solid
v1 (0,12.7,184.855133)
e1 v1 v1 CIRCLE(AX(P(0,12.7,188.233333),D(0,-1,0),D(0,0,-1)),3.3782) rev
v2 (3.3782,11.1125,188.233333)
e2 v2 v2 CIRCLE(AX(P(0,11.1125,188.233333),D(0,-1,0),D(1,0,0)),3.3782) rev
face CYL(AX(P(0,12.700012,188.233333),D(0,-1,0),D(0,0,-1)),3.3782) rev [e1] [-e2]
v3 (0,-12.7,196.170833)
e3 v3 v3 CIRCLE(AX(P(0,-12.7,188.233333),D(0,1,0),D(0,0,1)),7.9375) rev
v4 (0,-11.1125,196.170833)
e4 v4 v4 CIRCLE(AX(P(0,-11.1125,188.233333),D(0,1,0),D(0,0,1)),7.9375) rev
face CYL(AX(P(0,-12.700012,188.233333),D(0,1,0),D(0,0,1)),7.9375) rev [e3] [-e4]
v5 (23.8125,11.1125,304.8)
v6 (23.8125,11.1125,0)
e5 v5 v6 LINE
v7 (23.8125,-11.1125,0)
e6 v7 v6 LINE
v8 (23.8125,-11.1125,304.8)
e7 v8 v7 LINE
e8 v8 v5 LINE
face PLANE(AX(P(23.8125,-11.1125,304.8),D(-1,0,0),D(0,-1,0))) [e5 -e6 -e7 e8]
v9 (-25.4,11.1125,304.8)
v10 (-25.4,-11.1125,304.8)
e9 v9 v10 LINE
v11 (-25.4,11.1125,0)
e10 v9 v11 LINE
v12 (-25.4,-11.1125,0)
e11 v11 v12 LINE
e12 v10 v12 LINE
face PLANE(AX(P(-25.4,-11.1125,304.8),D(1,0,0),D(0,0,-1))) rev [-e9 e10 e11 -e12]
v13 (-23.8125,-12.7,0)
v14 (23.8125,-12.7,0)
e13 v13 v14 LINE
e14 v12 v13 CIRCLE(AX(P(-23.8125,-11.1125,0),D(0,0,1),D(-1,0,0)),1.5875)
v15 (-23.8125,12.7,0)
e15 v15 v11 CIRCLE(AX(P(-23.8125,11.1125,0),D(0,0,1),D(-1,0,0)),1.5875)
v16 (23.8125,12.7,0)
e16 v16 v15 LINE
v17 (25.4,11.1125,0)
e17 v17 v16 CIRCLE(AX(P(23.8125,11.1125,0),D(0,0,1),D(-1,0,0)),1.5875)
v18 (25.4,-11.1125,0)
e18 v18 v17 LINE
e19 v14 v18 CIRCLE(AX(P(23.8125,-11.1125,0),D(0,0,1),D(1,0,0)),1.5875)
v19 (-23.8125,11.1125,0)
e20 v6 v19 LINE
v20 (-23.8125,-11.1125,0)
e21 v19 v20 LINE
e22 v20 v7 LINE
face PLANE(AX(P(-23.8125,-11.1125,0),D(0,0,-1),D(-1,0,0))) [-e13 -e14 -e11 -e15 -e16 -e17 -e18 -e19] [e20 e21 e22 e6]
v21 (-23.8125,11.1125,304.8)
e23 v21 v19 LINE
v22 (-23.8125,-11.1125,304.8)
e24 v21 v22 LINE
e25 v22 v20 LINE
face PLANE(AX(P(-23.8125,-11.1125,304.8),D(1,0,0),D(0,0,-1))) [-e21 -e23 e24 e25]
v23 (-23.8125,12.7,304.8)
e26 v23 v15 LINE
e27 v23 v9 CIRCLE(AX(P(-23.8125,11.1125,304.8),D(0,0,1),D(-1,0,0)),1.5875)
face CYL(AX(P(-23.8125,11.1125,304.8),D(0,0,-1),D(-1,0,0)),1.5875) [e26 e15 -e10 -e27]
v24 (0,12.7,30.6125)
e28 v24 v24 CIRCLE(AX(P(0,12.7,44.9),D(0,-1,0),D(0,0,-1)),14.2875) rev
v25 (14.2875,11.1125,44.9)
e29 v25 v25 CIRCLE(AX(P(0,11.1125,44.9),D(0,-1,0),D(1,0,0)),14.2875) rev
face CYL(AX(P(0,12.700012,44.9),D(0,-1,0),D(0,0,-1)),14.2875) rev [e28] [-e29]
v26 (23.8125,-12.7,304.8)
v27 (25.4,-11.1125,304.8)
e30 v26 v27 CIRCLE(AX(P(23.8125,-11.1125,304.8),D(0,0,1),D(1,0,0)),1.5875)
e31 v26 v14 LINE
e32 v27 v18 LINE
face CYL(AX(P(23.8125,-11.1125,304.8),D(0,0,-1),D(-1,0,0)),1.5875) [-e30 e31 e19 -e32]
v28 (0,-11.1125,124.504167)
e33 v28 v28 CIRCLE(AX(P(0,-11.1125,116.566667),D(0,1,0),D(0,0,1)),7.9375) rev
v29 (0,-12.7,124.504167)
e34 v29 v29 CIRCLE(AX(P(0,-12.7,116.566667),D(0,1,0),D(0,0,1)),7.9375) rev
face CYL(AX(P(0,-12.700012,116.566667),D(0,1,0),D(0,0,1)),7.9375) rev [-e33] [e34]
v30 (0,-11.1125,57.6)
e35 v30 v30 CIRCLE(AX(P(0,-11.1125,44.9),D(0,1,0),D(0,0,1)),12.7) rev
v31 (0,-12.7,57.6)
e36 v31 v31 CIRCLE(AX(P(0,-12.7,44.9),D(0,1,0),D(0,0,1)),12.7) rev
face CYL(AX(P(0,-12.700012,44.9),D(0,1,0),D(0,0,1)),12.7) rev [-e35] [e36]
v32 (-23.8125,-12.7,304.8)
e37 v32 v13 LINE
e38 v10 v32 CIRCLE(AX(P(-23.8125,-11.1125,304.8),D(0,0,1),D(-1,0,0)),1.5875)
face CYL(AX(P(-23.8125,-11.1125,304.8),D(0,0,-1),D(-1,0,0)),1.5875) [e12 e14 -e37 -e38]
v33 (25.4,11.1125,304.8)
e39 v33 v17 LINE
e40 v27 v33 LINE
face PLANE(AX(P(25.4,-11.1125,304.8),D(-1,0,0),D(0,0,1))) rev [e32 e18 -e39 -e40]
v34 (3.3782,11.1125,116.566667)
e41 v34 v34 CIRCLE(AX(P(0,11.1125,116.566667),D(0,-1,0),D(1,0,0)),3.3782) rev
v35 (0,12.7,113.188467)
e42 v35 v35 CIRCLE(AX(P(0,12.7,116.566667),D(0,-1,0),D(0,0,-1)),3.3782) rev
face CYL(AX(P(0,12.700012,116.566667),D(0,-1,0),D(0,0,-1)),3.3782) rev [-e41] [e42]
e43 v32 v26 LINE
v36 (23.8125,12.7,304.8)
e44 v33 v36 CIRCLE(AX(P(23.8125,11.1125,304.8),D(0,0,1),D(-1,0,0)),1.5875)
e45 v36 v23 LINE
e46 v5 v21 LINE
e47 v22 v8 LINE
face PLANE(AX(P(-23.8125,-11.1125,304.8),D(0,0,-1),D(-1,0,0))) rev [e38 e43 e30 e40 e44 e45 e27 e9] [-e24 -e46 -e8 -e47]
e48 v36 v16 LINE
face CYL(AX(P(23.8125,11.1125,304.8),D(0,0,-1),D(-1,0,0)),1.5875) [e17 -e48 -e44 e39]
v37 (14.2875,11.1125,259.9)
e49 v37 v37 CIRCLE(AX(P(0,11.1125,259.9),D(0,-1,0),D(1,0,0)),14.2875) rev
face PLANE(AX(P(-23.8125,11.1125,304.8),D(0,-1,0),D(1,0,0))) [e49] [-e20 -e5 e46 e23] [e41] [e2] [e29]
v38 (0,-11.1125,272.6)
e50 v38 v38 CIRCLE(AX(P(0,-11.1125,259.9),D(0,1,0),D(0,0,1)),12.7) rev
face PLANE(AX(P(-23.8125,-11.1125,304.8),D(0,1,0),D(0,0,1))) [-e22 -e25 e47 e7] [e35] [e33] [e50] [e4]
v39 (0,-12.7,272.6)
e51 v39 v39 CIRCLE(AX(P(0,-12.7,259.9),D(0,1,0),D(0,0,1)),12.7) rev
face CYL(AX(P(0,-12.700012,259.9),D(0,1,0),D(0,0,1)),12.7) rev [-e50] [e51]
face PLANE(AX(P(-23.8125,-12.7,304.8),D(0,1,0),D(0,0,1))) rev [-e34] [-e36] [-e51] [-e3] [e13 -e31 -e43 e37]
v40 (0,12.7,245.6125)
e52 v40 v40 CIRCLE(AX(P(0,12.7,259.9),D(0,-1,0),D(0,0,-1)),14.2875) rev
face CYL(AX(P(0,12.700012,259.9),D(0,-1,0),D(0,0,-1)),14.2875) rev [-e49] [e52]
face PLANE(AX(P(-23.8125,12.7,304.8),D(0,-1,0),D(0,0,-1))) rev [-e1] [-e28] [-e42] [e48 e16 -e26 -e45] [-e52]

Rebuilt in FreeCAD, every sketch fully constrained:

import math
import FreeCAD as App
import Part
import Sketcher
Q = App.Units.Quantity

doc = App.newDocument("Part")
body = doc.addObject("PartDesign::Body", "Body")

# Sketch on XY plane
sketch1 = body.newObject("Sketcher::SketchObject", "Sketch")
sketch1.AttachmentSupport = (doc.getObject("XY_Plane"), [""])
sketch1.MapMode = "FlatFace"
sketch1.addGeometry([
    Part.LineSegment(App.Vector(-23.8, -12.7, 0), App.Vector(23.8, -12.7, 0)),  # 0
    Part.ArcOfCircle(Part.Circle(App.Vector(23.8, -11.1, 0), App.Vector(0, 0, 1), 1.6), math.radians(-90), math.radians(0)),  # 1
    Part.LineSegment(App.Vector(25.4, -11.1, 0), App.Vector(25.4, 11.1, 0)),  # 2
    Part.ArcOfCircle(Part.Circle(App.Vector(23.8, 11.1, 0), App.Vector(0, 0, 1), 1.6), math.radians(0), math.radians(90)),  # 3
    Part.LineSegment(App.Vector(23.8, 12.7, 0), App.Vector(-23.8, 12.7, 0)),  # 4
    Part.ArcOfCircle(Part.Circle(App.Vector(-23.8, 11.1, 0), App.Vector(0, 0, 1), 1.6), math.radians(90), math.radians(180)),  # 5
    Part.LineSegment(App.Vector(-25.4, 11.1, 0), App.Vector(-25.4, -11.1, 0)),  # 6
    Part.ArcOfCircle(Part.Circle(App.Vector(-23.8, -11.1, 0), App.Vector(0, 0, 1), 1.6), math.radians(180), math.radians(270)),  # 7
    Part.LineSegment(App.Vector(23.8, -11.1, 0), App.Vector(-23.8, -11.1, 0)),  # 8
    Part.LineSegment(App.Vector(-23.8, -11.1, 0), App.Vector(-23.8, 11.1, 0)),  # 9
    Part.LineSegment(App.Vector(-23.8, 11.1, 0), App.Vector(23.8, 11.1, 0)),  # 10
    Part.LineSegment(App.Vector(23.8, 11.1, 0), App.Vector(23.8, -11.1, 0)),  # 11
], False)
sketch1.addConstraint([
    Sketcher.Constraint("Tangent", 0, 2, 1, 1),
    Sketcher.Constraint("Tangent", 1, 2, 2, 1),
    Sketcher.Constraint("Tangent", 2, 2, 3, 1),
    Sketcher.Constraint("Tangent", 3, 2, 4, 1),
    Sketcher.Constraint("Tangent", 4, 2, 5, 1),
    Sketcher.Constraint("Tangent", 5, 2, 6, 1),
    Sketcher.Constraint("Tangent", 6, 2, 7, 1),
    Sketcher.Constraint("Tangent", 7, 2, 0, 1),
    Sketcher.Constraint("Coincident", 8, 2, 9, 1),
    Sketcher.Constraint("Coincident", 9, 2, 10, 1),
    Sketcher.Constraint("Coincident", 10, 2, 11, 1),
    Sketcher.Constraint("Coincident", 11, 2, 8, 1),
    Sketcher.Constraint("Horizontal", 0),
    Sketcher.Constraint("Vertical", 2),
    Sketcher.Constraint("Horizontal", 4),
    Sketcher.Constraint("Vertical", 6),
    Sketcher.Constraint("Horizontal", 8),
    Sketcher.Constraint("Vertical", 9),
    Sketcher.Constraint("Horizontal", 10),
    Sketcher.Constraint("Vertical", 11),
    Sketcher.Constraint("Coincident", 8, 2, 7, 3),
    Sketcher.Constraint("Coincident", 9, 2, 5, 3),
    Sketcher.Constraint("Coincident", 10, 2, 3, 3),
    Sketcher.Constraint("Equal", 1, 3),
    Sketcher.Constraint("Symmetric", 1, 3, 5, 3, -1, 1),
    Sketcher.Constraint("DistanceX", -1, 1, 1, 2, Q("1 in")),
    Sketcher.Constraint("Radius", 1, Q("0.0625 in")),
    Sketcher.Constraint("DistanceY", 0, 2, 3, 2, Q("1 in")),
])
pad1 = body.newObject("PartDesign::Pad", "Pad")
pad1.Profile = sketch1
pad1.Length = Q("12 in")

# Sketch on XZ plane
sketch2 = body.newObject("Sketcher::SketchObject", "Sketch001")
sketch2.AttachmentSupport = (doc.getObject("XZ_Plane"), [""])
sketch2.MapMode = "FlatFace"
sketch2.AttachmentOffset = App.Placement(App.Vector(0, 0, -0.5 * 25.4), App.Rotation())
sketch2.addGeometry(Part.Circle(App.Vector(0, 260, 0), App.Vector(0, 0, 1), 14), False)
sketch2.addConstraint([
    Sketcher.Constraint("PointOnObject", 0, 3, -2),
    Sketcher.Constraint("Diameter", 0, Q("1.125 in")),
    Sketcher.Constraint("DistanceY", -1, 1, 0, 3, 259.9),
])
pocket1 = body.newObject("PartDesign::Pocket", "Pocket")
pocket1.Profile = sketch2
pocket1.Type = "UpToFirst"
pocket1.Reversed = True

# Sketch on XZ plane
sketch3 = body.newObject("Sketcher::SketchObject", "Sketch002")
sketch3.AttachmentSupport = (doc.getObject("XZ_Plane"), [""])
sketch3.MapMode = "FlatFace"
sketch3.AttachmentOffset = App.Placement(App.Vector(0, 0, -0.5 * 25.4), App.Rotation())
sketch3.addGeometry(Part.Circle(App.Vector(0, 45, 0), App.Vector(0, 0, 1), 14), False)
sketch3.addConstraint([
    Sketcher.Constraint("PointOnObject", 0, 3, -2),
    Sketcher.Constraint("Diameter", 0, Q("1.125 in")),
    Sketcher.Constraint("DistanceY", -1, 1, 0, 3, 44.9),
])
pocket2 = body.newObject("PartDesign::Pocket", "Pocket001")
pocket2.Profile = sketch3
pocket2.Type = "UpToFirst"
pocket2.Reversed = True

# Sketch on XZ plane
sketch4 = body.newObject("Sketcher::SketchObject", "Sketch003")
sketch4.AttachmentSupport = (doc.getObject("XZ_Plane"), [""])
sketch4.MapMode = "FlatFace"
sketch4.AttachmentOffset = App.Placement(App.Vector(0, 0, -0.5 * 25.4), App.Rotation())
sketch4.addGeometry([
    Part.Circle(App.Vector(0, 260, 0), App.Vector(0, 0, 1), 14),
    Part.Circle(App.Vector(0, 45, 0), App.Vector(0, 0, 1), 14),
], False)
sketch4.addConstraint([
    Sketcher.Constraint("Equal", 0, 1),
    Sketcher.Constraint("PointOnObject", 0, 3, -2),
    Sketcher.Constraint("PointOnObject", 1, 3, -2),
    Sketcher.Constraint("Diameter", 0, Q("1.125 in")),
    Sketcher.Constraint("DistanceY", -1, 1, 0, 3, 259.9),
    Sketcher.Constraint("DistanceY", -1, 1, 1, 3, 44.9),
])
pocket3 = body.newObject("PartDesign::Pocket", "Pocket002")
pocket3.Profile = sketch4
pocket3.Length = 1

# Sketch on XZ plane
sketch5 = body.newObject("Sketcher::SketchObject", "Sketch004")
sketch5.AttachmentSupport = (doc.getObject("XZ_Plane"), [""])
sketch5.MapMode = "FlatFace"
sketch5.AttachmentOffset = App.Placement(App.Vector(0, 0, 0.5 * 25.4), App.Rotation())
sketch5.addGeometry(Part.Circle(App.Vector(0, 45, 0), App.Vector(0, 0, 1), 13), False)
sketch5.addConstraint([
    Sketcher.Constraint("PointOnObject", 0, 3, -2),
    Sketcher.Constraint("Diameter", 0, Q("1 in")),
    Sketcher.Constraint("DistanceY", -1, 1, 0, 3, 44.9),
])
pocket4 = body.newObject("PartDesign::Pocket", "Pocket003")
pocket4.Profile = sketch5
pocket4.Type = "UpToFirst"

# Sketch on XZ plane
sketch6 = body.newObject("Sketcher::SketchObject", "Sketch005")
sketch6.AttachmentSupport = (doc.getObject("XZ_Plane"), [""])
sketch6.MapMode = "FlatFace"
sketch6.AttachmentOffset = App.Placement(App.Vector(0, 0, 0.5 * 25.4), App.Rotation())
sketch6.addGeometry(Part.Circle(App.Vector(0, 260, 0), App.Vector(0, 0, 1), 13), False)
sketch6.addConstraint([
    Sketcher.Constraint("PointOnObject", 0, 3, -2),
    Sketcher.Constraint("Diameter", 0, Q("1 in")),
    Sketcher.Constraint("DistanceY", -1, 1, 0, 3, 259.9),
])
pocket5 = body.newObject("PartDesign::Pocket", "Pocket004")
pocket5.Profile = sketch6
pocket5.Type = "UpToFirst"

# Sketch on XZ plane
sketch7 = body.newObject("Sketcher::SketchObject", "Sketch006")
sketch7.AttachmentSupport = (doc.getObject("XZ_Plane"), [""])
sketch7.MapMode = "FlatFace"
sketch7.AttachmentOffset = App.Placement(App.Vector(0, 0, 0.5 * 25.4), App.Rotation())
sketch7.addGeometry([
    Part.Circle(App.Vector(0, 45, 0), App.Vector(0, 0, 1), 13),
    Part.Circle(App.Vector(0, 260, 0), App.Vector(0, 0, 1), 13),
], False)
sketch7.addConstraint([
    Sketcher.Constraint("Equal", 0, 1),
    Sketcher.Constraint("PointOnObject", 0, 3, -2),
    Sketcher.Constraint("PointOnObject", 1, 3, -2),
    Sketcher.Constraint("Diameter", 0, Q("1 in")),
    Sketcher.Constraint("DistanceY", -1, 1, 0, 3, 44.9),
    Sketcher.Constraint("DistanceY", -1, 1, 1, 3, 259.9),
])
pocket6 = body.newObject("PartDesign::Pocket", "Pocket005")
pocket6.Profile = sketch7
pocket6.Length = 1
pocket6.Reversed = True

# Sketch on XZ plane
sketch8 = body.newObject("Sketcher::SketchObject", "Sketch007")
sketch8.AttachmentSupport = (doc.getObject("XZ_Plane"), [""])
sketch8.MapMode = "FlatFace"
sketch8.AttachmentOffset = App.Placement(App.Vector(0, 0, -0.5 * 25.4), App.Rotation())
sketch8.addGeometry(Part.Circle(App.Vector(0, 188.2, 0), App.Vector(0, 0, 1), 3.4), False)
sketch8.addConstraint([
    Sketcher.Constraint("PointOnObject", 0, 3, -2),
    Sketcher.Constraint("Diameter", 0, Q("0.266 in")),
    Sketcher.Constraint("DistanceY", -1, 1, 0, 3, 188.233333),
])
pocket7 = body.newObject("PartDesign::Pocket", "Pocket006")
pocket7.Profile = sketch8
pocket7.Type = "UpToFirst"
pocket7.Reversed = True

# Sketch on XZ plane
sketch9 = body.newObject("Sketcher::SketchObject", "Sketch008")
sketch9.AttachmentSupport = (doc.getObject("XZ_Plane"), [""])
sketch9.MapMode = "FlatFace"
sketch9.AttachmentOffset = App.Placement(App.Vector(0, 0, -0.5 * 25.4), App.Rotation())
sketch9.addGeometry(Part.Circle(App.Vector(0, 116.6, 0), App.Vector(0, 0, 1), 3.4), False)
sketch9.addConstraint([
    Sketcher.Constraint("PointOnObject", 0, 3, -2),
    Sketcher.Constraint("Diameter", 0, Q("0.266 in")),
    Sketcher.Constraint("DistanceY", -1, 1, 0, 3, 116.566667),
])
pocket8 = body.newObject("PartDesign::Pocket", "Pocket007")
pocket8.Profile = sketch9
pocket8.Type = "UpToFirst"
pocket8.Reversed = True

# Sketch on XZ plane
sketch10 = body.newObject("Sketcher::SketchObject", "Sketch009")
sketch10.AttachmentSupport = (doc.getObject("XZ_Plane"), [""])
sketch10.MapMode = "FlatFace"
sketch10.AttachmentOffset = App.Placement(App.Vector(0, 0, -0.5 * 25.4), App.Rotation())
sketch10.addGeometry([
    Part.Circle(App.Vector(0, 188.2, 0), App.Vector(0, 0, 1), 3.4),
    Part.Circle(App.Vector(0, 116.6, 0), App.Vector(0, 0, 1), 3.4),
], False)
sketch10.addConstraint([
    Sketcher.Constraint("Equal", 0, 1),
    Sketcher.Constraint("PointOnObject", 0, 3, -2),
    Sketcher.Constraint("PointOnObject", 1, 3, -2),
    Sketcher.Constraint("Diameter", 0, Q("0.266 in")),
    Sketcher.Constraint("DistanceY", -1, 1, 0, 3, 188.233333),
    Sketcher.Constraint("DistanceY", -1, 1, 1, 3, 116.566667),
])
pocket9 = body.newObject("PartDesign::Pocket", "Pocket008")
pocket9.Profile = sketch10
pocket9.Length = 1

# Sketch on XZ plane
sketch11 = body.newObject("Sketcher::SketchObject", "Sketch010")
sketch11.AttachmentSupport = (doc.getObject("XZ_Plane"), [""])
sketch11.MapMode = "FlatFace"
sketch11.AttachmentOffset = App.Placement(App.Vector(0, 0, 0.5 * 25.4), App.Rotation())
sketch11.addGeometry(Part.Circle(App.Vector(0, 117, 0), App.Vector(0, 0, 1), 8), False)
sketch11.addConstraint([
    Sketcher.Constraint("PointOnObject", 0, 3, -2),
    Sketcher.Constraint("Diameter", 0, Q("0.625 in")),
    Sketcher.Constraint("DistanceY", -1, 1, 0, 3, 116.566667),
])
pocket10 = body.newObject("PartDesign::Pocket", "Pocket009")
pocket10.Profile = sketch11
pocket10.Type = "UpToFirst"

# Sketch on XZ plane
sketch12 = body.newObject("Sketcher::SketchObject", "Sketch011")
sketch12.AttachmentSupport = (doc.getObject("XZ_Plane"), [""])
sketch12.MapMode = "FlatFace"
sketch12.AttachmentOffset = App.Placement(App.Vector(0, 0, 0.5 * 25.4), App.Rotation())
sketch12.addGeometry(Part.Circle(App.Vector(0, 188, 0), App.Vector(0, 0, 1), 8), False)
sketch12.addConstraint([
    Sketcher.Constraint("PointOnObject", 0, 3, -2),
    Sketcher.Constraint("Diameter", 0, Q("0.625 in")),
    Sketcher.Constraint("DistanceY", -1, 1, 0, 3, 188.233333),
])
pocket11 = body.newObject("PartDesign::Pocket", "Pocket010")
pocket11.Profile = sketch12
pocket11.Type = "UpToFirst"

# Sketch on XZ plane
sketch13 = body.newObject("Sketcher::SketchObject", "Sketch012")
sketch13.AttachmentSupport = (doc.getObject("XZ_Plane"), [""])
sketch13.MapMode = "FlatFace"
sketch13.AttachmentOffset = App.Placement(App.Vector(0, 0, 0.5 * 25.4), App.Rotation())
sketch13.addGeometry([
    Part.Circle(App.Vector(0, 117, 0), App.Vector(0, 0, 1), 8),
    Part.Circle(App.Vector(0, 188, 0), App.Vector(0, 0, 1), 8),
], False)
sketch13.addConstraint([
    Sketcher.Constraint("Equal", 0, 1),
    Sketcher.Constraint("PointOnObject", 0, 3, -2),
    Sketcher.Constraint("PointOnObject", 1, 3, -2),
    Sketcher.Constraint("Diameter", 0, Q("0.625 in")),
    Sketcher.Constraint("DistanceY", -1, 1, 0, 3, 116.566667),
    Sketcher.Constraint("DistanceY", -1, 1, 1, 3, 188.233333),
])
pocket12 = body.newObject("PartDesign::Pocket", "Pocket011")
pocket12.Profile = sketch13
pocket12.Length = 1
pocket12.Reversed = True

doc.recompute()
